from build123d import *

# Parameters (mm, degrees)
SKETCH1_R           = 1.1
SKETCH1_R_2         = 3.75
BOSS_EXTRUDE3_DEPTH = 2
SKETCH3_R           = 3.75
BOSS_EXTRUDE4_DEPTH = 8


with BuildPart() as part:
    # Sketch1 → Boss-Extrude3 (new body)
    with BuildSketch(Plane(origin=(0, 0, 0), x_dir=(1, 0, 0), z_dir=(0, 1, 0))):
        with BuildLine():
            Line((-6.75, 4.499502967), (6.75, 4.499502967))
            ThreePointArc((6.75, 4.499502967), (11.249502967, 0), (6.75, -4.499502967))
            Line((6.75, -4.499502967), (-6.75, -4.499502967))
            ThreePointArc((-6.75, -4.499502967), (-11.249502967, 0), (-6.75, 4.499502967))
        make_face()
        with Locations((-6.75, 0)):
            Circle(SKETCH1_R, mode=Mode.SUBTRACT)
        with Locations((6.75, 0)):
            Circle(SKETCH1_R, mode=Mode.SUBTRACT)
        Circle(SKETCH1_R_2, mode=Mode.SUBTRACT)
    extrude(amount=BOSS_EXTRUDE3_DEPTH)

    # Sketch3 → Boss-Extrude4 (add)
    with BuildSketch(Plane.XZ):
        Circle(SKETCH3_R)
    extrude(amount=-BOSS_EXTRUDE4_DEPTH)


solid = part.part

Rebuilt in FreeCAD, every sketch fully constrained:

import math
import FreeCAD as App
import Part
import Sketcher
from FreeCAD import Vector

doc = App.newDocument("Part")
params = doc.addObject("Spreadsheet::Sheet", "Params")
for row, (alias, value) in enumerate([
    ("sketch1_diameter", "2.2 mm"),
    ("sketch1_diameter2", "7.5 mm"),
    ("sketch1_width", "13.5 mm"),
    ("pad1_length", "2 mm"),
    ("sketch2_diameter", "7.5 mm"),
    ("pad2_length", "8 mm"),
], start=1):
    params.set(f"A{row}", alias)
    params.set(f"B{row}", "=" + value)
    params.setAlias(f"B{row}", alias)

body = doc.addObject("PartDesign::Body", "Body")

sketch1 = body.newObject("Sketcher::SketchObject", "Sketch")
sketch1.AttachmentSupport = (doc.getObject("XZ_Plane"), [""])
sketch1.MapMode = "FlatFace"
sketch1.addGeometry([
    Part.LineSegment(Vector(6.8, -4.5, 0), Vector(-6.8, -4.5, 0)),
    Part.ArcOfCircle(Part.Circle(Vector(-6.8, 0, 0), Vector(0, 0, 1), 4.5), math.radians(90), math.radians(270)),
    Part.LineSegment(Vector(-6.8, 4.5, 0), Vector(6.8, 4.5, 0)),
    Part.ArcOfCircle(Part.Circle(Vector(6.8, 0, 0), Vector(0, 0, 1), 4.5), math.radians(-90), math.radians(90)),
    Part.Circle(Vector(6.8, 0, 0), Vector(0, 0, 1), 1.1),
    Part.Circle(Vector(0, 0, 0), Vector(0, 0, 1), 3.8),
    Part.Circle(Vector(-6.8, 0, 0), Vector(0, 0, 1), 1.1),
], False)
sketch1.addConstraint([
    Sketcher.Constraint("Tangent", 0, 2, 1, 2),
    Sketcher.Constraint("Tangent", 1, 1, 2, 1),
    Sketcher.Constraint("Tangent", 2, 2, 3, 2),
    Sketcher.Constraint("Tangent", 3, 1, 0, 1),
    Sketcher.Constraint("Horizontal", 0),
    Sketcher.Constraint("Horizontal", 2),
    Sketcher.Constraint("Coincident", 5, 3, -1, 1),
    Sketcher.Constraint("Coincident", 4, 3, 3, 3),
    Sketcher.Constraint("Coincident", 6, 3, 1, 3),
    Sketcher.Constraint("Equal", 4, 6),
    Sketcher.Constraint("Symmetric", 1, 3, 3, 3, -1, 1),
    Sketcher.Constraint("Diameter", 4, 2.2),
    Sketcher.Constraint("Diameter", 5, 7.5),
    Sketcher.Constraint("DistanceX", 0, 2, 0, 1, 13.5),
    Sketcher.Constraint("Radius", 1, 4.499503),
])
sketch1.setExpression("Constraints[11]", "Params.sketch1_diameter")
sketch1.setExpression("Constraints[12]", "Params.sketch1_diameter2")
sketch1.setExpression("Constraints[13]", "Params.sketch1_width")
pad1 = body.newObject("PartDesign::Pad", "Pad")
pad1.Profile = sketch1
pad1.setExpression("Length", "Params.pad1_length")
pad1.Reversed = True

sketch2 = body.newObject("Sketcher::SketchObject", "Sketch001")
sketch2.AttachmentSupport = (doc.getObject("XZ_Plane"), [""])
sketch2.MapMode = "FlatFace"
sketch2.addGeometry(Part.Circle(Vector(0, 0, 0), Vector(0, 0, 1), 3.8), False)
sketch2.addConstraint([
    Sketcher.Constraint("Coincident", 0, 3, -1, 1),
    Sketcher.Constraint("Diameter", 0, 7.5),
])
sketch2.setExpression("Constraints[1]", "Params.sketch2_diameter")
pad2 = body.newObject("PartDesign::Pad", "Pad001")
pad2.Profile = sketch2
pad2.setExpression("Length", "Params.pad2_length")
pad2.Reversed = True

doc.recompute()
